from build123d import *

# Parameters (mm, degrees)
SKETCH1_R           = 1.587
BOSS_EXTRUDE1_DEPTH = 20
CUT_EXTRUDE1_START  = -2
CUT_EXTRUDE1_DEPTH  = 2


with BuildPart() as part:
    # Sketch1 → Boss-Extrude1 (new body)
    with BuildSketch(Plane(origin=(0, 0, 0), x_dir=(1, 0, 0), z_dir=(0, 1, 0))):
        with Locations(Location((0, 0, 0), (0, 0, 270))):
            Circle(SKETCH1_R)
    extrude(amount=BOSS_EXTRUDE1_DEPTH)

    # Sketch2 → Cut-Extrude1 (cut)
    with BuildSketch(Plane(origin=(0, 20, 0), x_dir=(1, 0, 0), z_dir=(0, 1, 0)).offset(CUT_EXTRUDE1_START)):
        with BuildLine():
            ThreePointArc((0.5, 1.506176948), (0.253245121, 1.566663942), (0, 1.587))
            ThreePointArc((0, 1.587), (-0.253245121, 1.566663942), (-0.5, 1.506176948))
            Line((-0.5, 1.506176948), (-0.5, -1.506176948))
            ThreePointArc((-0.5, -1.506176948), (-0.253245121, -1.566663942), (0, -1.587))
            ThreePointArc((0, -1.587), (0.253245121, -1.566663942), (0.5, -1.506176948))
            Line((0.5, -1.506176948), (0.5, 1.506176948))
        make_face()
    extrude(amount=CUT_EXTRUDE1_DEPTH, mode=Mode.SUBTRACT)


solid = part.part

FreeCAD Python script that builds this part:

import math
import FreeCAD as App
import Part
import Sketcher

doc = App.newDocument("Part")
params = doc.addObject("Spreadsheet::Sheet", "Params")
for row, (alias, value) in enumerate([
    ("pad1_length", "20 mm"),
    ("pocket1_length", "2 mm"),
], start=1):
    params.set(f"A{row}", alias)
    params.set(f"B{row}", "=" + value)
    params.setAlias(f"B{row}", alias)

body = doc.addObject("PartDesign::Body", "Body")

sketch1 = doc.addObject("Sketcher::SketchObject", "Sketch")
body.addObject(sketch1)
sketch1.AttachmentSupport = (doc.XZ_Plane, [""])
sketch1.MapMode = "FlatFace"
sketch1.addGeometry(Part.Circle(App.Vector(0, 0, 0), App.Vector(0, 0, 1), 1.6), False)
sketch1.addConstraint([
    Sketcher.Constraint("Coincident", 0, 3, -1, 1),
    Sketcher.Constraint("Diameter", 0, 3.174),
])
pad1 = doc.addObject("PartDesign::Pad", "Pad")
body.addObject(pad1)
pad1.Profile = sketch1
pad1.setExpression("Length", "Params.pad1_length")
pad1.Reversed = True

sketch2 = doc.addObject("Sketcher::SketchObject", "Sketch001")
body.addObject(sketch2)
sketch2.AttachmentSupport = (doc.XZ_Plane, [""])
sketch2.MapMode = "FlatFace"
sketch2.AttachmentOffset = App.Placement(App.Vector(0, 0, -18), App.Rotation())
sketch2.addGeometry([
    Part.ArcOfCircle(Part.Circle(App.Vector(0, 0, 0), App.Vector(0, 0, 1), 1.6), math.radians(-90), math.radians(-71.64)),
    Part.ArcOfCircle(Part.Circle(App.Vector(0, 0, 0), App.Vector(0, 0, 1), 1.6), math.radians(-108.36), math.radians(-90)),
    Part.LineSegment(App.Vector(-0.5, -1.5, 0), App.Vector(-0.5, 1.5, 0)),
    Part.ArcOfCircle(Part.Circle(App.Vector(0, 0, 0), App.Vector(0, 0, 1), 1.6), math.radians(90), math.radians(108.36)),
    Part.ArcOfCircle(Part.Circle(App.Vector(0, 0, 0), App.Vector(0, 0, 1), 1.6), math.radians(71.64), math.radians(90)),
    Part.LineSegment(App.Vector(0.5, 1.5, 0), App.Vector(0.5, -1.5, 0)),
], False)
sketch2.addConstraint([
    Sketcher.Constraint("Tangent", 0, 1, 1, 2),
    Sketcher.Constraint("Coincident", 1, 1, 2, 1),
    Sketcher.Constraint("Coincident", 2, 2, 3, 2),
    Sketcher.Constraint("Tangent", 3, 1, 4, 2),
    Sketcher.Constraint("Coincident", 4, 1, 5, 1),
    Sketcher.Constraint("Coincident", 5, 2, 0, 2),
    Sketcher.Constraint("Vertical", 2),
    Sketcher.Constraint("Vertical", 5),
    Sketcher.Constraint("Coincident", 0, 3, -1, 1),
    Sketcher.Constraint("Coincident", 3, 3, -1, 1),
    Sketcher.Constraint("Equal", 0, 1),
    Sketcher.Constraint("Equal", 1, 3),
    Sketcher.Constraint("Equal", 3, 4),
    Sketcher.Constraint("PointOnObject", 0, 1, -2),
    Sketcher.Constraint("PointOnObject", 3, 1, -2),
    Sketcher.Constraint("Horizontal", 2, 2, 4, 1),
    Sketcher.Constraint("Radius", 0, 1.587),
    Sketcher.Constraint("DistanceX", 2, 2, 4, 1, 1.0),
])
pocket1 = doc.addObject("PartDesign::Pocket", "Pocket")
body.addObject(pocket1)
pocket1.Profile = sketch2
pocket1.setExpression("Length", "Params.pocket1_length")

doc.recompute()
